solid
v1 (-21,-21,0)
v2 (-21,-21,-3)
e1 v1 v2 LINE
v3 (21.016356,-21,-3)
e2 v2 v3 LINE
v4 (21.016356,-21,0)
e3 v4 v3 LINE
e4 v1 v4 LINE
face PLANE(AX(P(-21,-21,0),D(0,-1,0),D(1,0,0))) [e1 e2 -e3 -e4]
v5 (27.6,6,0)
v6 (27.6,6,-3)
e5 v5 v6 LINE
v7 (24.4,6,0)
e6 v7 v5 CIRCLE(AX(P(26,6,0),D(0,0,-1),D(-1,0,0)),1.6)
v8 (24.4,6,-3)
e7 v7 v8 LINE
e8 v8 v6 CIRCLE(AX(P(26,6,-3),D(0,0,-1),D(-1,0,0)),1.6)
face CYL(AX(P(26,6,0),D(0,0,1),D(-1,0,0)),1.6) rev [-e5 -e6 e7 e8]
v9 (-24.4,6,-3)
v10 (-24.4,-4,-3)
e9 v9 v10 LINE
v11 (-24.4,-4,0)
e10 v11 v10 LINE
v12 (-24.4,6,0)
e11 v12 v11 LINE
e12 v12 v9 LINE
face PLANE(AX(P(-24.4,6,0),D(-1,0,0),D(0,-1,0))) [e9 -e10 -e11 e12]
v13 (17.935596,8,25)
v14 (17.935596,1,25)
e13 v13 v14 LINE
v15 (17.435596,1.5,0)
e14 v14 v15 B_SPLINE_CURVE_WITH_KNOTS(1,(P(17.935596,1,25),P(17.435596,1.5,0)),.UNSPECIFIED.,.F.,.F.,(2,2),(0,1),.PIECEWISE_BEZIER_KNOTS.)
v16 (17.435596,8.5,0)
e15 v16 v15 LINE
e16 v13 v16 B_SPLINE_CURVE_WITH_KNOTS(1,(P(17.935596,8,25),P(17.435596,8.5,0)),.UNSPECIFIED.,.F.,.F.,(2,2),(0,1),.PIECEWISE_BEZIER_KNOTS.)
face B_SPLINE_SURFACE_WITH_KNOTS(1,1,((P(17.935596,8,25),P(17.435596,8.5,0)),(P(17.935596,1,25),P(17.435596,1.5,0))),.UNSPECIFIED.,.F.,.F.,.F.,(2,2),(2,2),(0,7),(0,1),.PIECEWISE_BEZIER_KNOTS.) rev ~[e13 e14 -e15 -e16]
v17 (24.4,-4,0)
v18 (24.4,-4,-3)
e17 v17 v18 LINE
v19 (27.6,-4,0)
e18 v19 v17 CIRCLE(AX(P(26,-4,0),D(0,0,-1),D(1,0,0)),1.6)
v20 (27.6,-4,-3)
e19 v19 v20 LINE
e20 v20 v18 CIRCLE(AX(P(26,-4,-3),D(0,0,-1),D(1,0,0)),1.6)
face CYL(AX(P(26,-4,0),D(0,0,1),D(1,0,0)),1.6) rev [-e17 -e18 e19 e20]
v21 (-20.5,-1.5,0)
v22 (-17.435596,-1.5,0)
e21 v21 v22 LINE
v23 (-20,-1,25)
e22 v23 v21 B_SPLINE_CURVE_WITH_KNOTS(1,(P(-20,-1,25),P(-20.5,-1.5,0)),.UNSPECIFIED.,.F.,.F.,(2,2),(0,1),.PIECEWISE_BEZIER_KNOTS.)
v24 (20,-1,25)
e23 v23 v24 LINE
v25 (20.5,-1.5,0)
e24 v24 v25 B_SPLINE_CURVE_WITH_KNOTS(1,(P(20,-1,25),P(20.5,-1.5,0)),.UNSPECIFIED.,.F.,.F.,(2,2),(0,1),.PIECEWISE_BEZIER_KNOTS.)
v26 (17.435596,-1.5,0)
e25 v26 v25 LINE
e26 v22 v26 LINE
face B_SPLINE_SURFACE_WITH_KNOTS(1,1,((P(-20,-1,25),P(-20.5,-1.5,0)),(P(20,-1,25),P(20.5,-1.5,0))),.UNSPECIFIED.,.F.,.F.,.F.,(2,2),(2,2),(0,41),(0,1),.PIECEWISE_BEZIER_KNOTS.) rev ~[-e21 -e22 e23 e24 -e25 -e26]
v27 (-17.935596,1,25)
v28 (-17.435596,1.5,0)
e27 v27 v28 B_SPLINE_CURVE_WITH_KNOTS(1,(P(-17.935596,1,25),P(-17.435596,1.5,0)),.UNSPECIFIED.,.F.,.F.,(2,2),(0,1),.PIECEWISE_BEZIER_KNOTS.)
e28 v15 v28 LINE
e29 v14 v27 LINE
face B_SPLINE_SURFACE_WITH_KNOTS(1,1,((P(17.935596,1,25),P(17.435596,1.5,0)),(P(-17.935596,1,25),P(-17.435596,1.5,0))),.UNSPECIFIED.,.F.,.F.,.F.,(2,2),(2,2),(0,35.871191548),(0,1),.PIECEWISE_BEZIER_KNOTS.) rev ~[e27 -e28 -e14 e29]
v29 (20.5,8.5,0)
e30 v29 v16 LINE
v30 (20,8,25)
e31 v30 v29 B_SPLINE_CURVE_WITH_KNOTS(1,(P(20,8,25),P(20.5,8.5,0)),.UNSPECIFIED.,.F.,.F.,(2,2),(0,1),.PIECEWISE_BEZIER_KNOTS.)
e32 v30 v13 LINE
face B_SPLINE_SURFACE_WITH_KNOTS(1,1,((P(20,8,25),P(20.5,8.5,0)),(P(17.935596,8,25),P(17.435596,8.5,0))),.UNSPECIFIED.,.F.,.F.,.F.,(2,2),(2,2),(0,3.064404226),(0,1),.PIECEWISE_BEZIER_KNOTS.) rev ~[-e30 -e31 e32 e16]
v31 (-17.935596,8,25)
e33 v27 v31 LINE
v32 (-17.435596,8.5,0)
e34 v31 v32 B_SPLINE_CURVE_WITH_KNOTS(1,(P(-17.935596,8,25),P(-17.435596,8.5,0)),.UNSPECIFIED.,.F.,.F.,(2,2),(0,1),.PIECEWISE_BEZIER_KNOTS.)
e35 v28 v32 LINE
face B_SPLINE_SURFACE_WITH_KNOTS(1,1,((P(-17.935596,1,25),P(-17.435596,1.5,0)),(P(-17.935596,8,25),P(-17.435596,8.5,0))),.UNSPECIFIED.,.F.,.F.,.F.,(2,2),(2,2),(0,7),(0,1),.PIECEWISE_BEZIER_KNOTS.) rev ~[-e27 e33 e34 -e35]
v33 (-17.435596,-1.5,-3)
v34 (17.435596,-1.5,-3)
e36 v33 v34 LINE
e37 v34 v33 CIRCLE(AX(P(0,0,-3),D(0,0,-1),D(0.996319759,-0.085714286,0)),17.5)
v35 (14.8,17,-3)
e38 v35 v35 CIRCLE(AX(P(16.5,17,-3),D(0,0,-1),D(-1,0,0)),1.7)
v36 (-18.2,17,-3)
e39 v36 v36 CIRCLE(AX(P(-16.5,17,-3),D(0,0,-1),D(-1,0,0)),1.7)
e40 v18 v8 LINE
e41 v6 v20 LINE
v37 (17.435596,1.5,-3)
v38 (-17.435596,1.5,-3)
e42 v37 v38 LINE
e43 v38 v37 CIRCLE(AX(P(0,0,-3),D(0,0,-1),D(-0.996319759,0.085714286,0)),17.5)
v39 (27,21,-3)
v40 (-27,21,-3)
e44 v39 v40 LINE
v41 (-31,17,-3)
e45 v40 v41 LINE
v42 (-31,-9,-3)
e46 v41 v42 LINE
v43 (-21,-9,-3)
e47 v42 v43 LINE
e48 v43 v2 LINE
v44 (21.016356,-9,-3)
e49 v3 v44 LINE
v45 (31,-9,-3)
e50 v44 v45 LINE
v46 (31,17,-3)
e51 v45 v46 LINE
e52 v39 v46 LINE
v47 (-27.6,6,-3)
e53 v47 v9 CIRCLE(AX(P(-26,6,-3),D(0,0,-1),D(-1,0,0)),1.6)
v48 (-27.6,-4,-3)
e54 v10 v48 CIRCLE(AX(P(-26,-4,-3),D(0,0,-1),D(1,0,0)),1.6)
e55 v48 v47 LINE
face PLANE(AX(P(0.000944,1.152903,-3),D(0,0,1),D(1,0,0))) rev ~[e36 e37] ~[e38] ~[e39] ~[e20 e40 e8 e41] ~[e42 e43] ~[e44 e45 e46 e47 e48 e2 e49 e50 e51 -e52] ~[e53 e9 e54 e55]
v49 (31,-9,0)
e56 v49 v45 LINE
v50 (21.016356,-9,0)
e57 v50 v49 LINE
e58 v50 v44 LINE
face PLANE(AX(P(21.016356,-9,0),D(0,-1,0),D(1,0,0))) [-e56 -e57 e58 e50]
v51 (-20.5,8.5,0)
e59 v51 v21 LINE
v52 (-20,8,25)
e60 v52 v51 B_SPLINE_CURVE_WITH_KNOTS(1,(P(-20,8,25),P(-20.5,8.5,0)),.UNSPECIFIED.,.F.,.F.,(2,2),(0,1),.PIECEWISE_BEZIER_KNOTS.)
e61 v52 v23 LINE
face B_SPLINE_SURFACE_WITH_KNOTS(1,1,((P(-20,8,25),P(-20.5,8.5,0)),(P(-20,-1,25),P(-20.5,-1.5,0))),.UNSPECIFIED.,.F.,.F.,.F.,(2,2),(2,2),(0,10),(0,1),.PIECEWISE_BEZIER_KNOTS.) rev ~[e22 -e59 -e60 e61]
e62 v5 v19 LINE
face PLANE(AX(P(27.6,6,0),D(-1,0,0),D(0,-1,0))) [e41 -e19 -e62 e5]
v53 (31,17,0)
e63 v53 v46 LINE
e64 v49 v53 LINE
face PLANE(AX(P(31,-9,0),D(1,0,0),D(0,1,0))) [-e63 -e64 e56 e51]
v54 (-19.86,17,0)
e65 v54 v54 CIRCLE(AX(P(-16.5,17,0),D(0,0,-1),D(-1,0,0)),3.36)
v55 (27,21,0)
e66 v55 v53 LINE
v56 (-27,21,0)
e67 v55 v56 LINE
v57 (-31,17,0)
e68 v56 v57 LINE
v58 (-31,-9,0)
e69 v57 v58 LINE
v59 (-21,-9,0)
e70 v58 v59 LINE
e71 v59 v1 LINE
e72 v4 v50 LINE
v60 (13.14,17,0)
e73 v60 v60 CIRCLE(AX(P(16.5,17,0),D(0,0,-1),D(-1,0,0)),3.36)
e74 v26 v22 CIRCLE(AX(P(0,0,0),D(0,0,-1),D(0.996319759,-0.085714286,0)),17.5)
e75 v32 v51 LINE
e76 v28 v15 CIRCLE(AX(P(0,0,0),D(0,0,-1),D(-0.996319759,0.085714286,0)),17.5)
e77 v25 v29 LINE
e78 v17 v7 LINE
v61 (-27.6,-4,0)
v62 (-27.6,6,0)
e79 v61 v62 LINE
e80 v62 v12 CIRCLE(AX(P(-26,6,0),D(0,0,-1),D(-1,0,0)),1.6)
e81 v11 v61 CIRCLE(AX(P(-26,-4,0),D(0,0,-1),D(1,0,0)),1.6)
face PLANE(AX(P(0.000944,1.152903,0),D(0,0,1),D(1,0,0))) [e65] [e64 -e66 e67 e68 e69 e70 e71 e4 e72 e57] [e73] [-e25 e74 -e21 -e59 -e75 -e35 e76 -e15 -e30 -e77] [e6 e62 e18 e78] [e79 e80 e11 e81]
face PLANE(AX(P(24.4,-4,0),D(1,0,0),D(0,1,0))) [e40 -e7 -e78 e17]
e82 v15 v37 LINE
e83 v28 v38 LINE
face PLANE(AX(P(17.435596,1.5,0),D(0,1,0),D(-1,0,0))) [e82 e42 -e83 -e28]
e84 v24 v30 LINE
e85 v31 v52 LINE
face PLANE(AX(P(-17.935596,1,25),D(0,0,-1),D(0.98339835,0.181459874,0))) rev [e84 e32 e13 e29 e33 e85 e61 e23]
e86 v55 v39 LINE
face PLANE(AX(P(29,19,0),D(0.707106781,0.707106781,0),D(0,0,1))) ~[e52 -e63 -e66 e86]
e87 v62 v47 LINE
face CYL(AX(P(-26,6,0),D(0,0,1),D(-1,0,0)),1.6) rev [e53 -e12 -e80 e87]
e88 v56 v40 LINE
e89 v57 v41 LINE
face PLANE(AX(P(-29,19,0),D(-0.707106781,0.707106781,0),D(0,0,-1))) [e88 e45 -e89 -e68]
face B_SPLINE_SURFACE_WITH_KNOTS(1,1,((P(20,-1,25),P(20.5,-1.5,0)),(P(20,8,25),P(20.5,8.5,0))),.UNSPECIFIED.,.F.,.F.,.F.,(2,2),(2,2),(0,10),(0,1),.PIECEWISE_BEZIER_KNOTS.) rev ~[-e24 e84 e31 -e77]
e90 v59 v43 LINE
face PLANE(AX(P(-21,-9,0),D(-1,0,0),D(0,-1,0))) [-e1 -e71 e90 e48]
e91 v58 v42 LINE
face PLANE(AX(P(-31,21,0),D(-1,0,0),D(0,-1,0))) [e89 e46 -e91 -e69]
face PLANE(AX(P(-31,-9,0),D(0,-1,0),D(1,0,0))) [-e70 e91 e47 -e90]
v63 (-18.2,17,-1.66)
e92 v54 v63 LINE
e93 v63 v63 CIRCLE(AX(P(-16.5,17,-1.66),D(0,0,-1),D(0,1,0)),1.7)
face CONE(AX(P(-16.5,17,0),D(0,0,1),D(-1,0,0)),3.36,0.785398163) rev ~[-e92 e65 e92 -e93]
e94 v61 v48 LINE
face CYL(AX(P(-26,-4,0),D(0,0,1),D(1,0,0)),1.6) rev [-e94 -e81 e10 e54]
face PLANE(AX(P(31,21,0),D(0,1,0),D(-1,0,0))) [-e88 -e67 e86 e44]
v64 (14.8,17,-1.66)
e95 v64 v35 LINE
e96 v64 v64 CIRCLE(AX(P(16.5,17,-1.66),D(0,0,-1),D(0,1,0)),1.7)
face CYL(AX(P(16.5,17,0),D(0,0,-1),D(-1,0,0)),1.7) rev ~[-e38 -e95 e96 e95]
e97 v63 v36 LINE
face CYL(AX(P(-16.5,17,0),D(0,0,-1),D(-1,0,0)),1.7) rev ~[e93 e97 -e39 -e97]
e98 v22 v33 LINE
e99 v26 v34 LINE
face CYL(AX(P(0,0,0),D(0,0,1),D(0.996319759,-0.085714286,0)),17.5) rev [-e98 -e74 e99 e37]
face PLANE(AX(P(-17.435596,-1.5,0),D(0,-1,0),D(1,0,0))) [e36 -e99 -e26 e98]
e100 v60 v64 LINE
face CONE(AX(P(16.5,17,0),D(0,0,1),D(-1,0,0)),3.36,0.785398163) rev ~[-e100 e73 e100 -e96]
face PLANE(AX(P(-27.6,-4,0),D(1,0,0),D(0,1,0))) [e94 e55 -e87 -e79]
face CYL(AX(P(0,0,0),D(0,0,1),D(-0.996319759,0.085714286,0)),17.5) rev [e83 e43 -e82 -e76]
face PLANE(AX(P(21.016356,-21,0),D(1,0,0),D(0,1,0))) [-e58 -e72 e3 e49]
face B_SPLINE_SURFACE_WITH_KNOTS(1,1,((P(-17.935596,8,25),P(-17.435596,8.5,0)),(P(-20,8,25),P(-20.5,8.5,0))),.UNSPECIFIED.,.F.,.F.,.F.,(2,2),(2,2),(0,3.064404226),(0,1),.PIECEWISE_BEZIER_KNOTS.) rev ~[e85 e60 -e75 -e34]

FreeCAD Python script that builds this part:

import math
import FreeCAD as App
import Part
import Sketcher

V = App.Vector
Q = App.Units.Quantity


def edges_at(feature, points):
    """Names of the edges that pass closest to the given points."""
    edges = feature.Shape.Edges
    near = lambda p: min(range(len(edges)), key=lambda i: edges[i].distToShape(Part.Vertex(*p))[0])
    return sorted({f"Edge{near(p) + 1}" for p in points})

doc = App.newDocument("Part")
params = doc.addObject("Spreadsheet::Sheet", "Params")
for row, (alias, value) in enumerate([
    ("sketch1_radius", "17.5 mm"),
    ("sketch1_radius2", "1.6 mm"),
    ("sketch1_width", "62 mm"),
    ("sketch1_width2", "10 mm"),
    ("sketch1_height", "30 mm"),
    ("pad1_length", "3 mm"),
    ("sketch2_diameter", "3.4 mm"),
    ("hole_diameter", "3.4 mm"),
    ("hole_csink_diameter", "6.72 mm"),
    ("chamfer_size", "4 mm"),
    ("sketch3_width", "40 mm"),
    ("sketch3_height", "7 mm"),
    ("sketch3_height2", "9 mm"),
    ("sketch4_width", "41 mm"),
    ("sketch4_height", "7 mm"),
    ("sketch4_height2", "10 mm"),
], start=1):
    params.set(f"A{row}", alias)
    params.set(f"B{row}", "=" + value)
    params.setAlias(f"B{row}", alias)

body = doc.addObject("PartDesign::Body", "Body")

sketch1 = doc.addObject("Sketcher::SketchObject", "Sketch")
body.addObject(sketch1)
sketch1.AttachmentSupport = (doc.XY_Plane, [""])
sketch1.MapMode = "FlatFace"
sketch1.addGeometry([
    Part.LineSegment(V(31, 21, 0), V(-31, 21, 0)),
    Part.LineSegment(V(-31, 21, 0), V(-31, -9, 0)),
    Part.LineSegment(V(-31, -9, 0), V(-21, -9, 0)),
    Part.LineSegment(V(-21, -9, 0), V(-21, -21, 0)),
    Part.LineSegment(V(-21, -21, 0), V(21.016356, -21, 0)),
    Part.LineSegment(V(21.016356, -21, 0), V(21.016356, -9, 0)),
    Part.LineSegment(V(21.016356, -9, 0), V(31, -9, 0)),
    Part.LineSegment(V(31, -9, 0), V(31, 21, 0)),
    Part.LineSegment(V(-17.435596, -1.5, 0), V(17.435596, -1.5, 0)),
    Part.ArcOfCircle(Part.Circle(V(0, 0, 0), V(0, 0, 1), 17.5), math.radians(-175.0829), math.radians(-4.9171)),
    Part.LineSegment(V(-24.4, 6, 0), V(-24.4, -4, 0)),
    Part.ArcOfCircle(Part.Circle(V(-26, -4, 0), V(0, 0, 1), 1.6), math.radians(180), math.radians(360)),
    Part.LineSegment(V(-27.6, -4, 0), V(-27.6, 6, 0)),
    Part.ArcOfCircle(Part.Circle(V(-26, 6, 0), V(0, 0, 1), 1.6), math.radians(0), math.radians(180)),
    Part.LineSegment(V(27.6, 6, 0), V(27.6, -4, 0)),
    Part.ArcOfCircle(Part.Circle(V(26, -4, 0), V(0, 0, 1), 1.6), math.radians(180), math.radians(360)),
    Part.LineSegment(V(24.4, -4, 0), V(24.4, 6, 0)),
    Part.ArcOfCircle(Part.Circle(V(26, 6, 0), V(0, 0, 1), 1.6), math.radians(0), math.radians(180)),
    Part.ArcOfCircle(Part.Circle(V(0, 0, 0), V(0, 0, 1), 17.5), math.radians(4.9171), math.radians(175.0829)),
    Part.LineSegment(V(17.435596, 1.5, 0), V(-17.435596, 1.5, 0)),
], False)
sketch1.addConstraint([
    Sketcher.Constraint("Coincident", 0, 2, 1, 1),
    Sketcher.Constraint("Coincident", 1, 2, 2, 1),
    Sketcher.Constraint("Coincident", 2, 2, 3, 1),
    Sketcher.Constraint("Coincident", 3, 2, 4, 1),
    Sketcher.Constraint("Coincident", 4, 2, 5, 1),
    Sketcher.Constraint("Coincident", 5, 2, 6, 1),
    Sketcher.Constraint("Coincident", 6, 2, 7, 1),
    Sketcher.Constraint("Coincident", 7, 2, 0, 1),
    Sketcher.Constraint("Coincident", 8, 1, 9, 1),
    Sketcher.Constraint("Coincident", 9, 2, 8, 2),
    Sketcher.Constraint("Tangent", 10, 2, 11, 2),
    Sketcher.Constraint("Tangent", 11, 1, 12, 1),
    Sketcher.Constraint("Tangent", 12, 2, 13, 2),
    Sketcher.Constraint("Tangent", 13, 1, 10, 1),
    Sketcher.Constraint("Tangent", 14, 2, 15, 2),
    Sketcher.Constraint("Tangent", 15, 1, 16, 1),
    Sketcher.Constraint("Tangent", 16, 2, 17, 2),
    Sketcher.Constraint("Tangent", 17, 1, 14, 1),
    Sketcher.Constraint("Coincident", 18, 1, 19, 1),
    Sketcher.Constraint("Coincident", 19, 2, 18, 2),
    Sketcher.Constraint("Horizontal", 0),
    Sketcher.Constraint("Vertical", 1),
    Sketcher.Constraint("Horizontal", 2),
    Sketcher.Constraint("Vertical", 3),
    Sketcher.Constraint("Horizontal", 4),
    Sketcher.Constraint("Vertical", 5),
    Sketcher.Constraint("Horizontal", 6),
    Sketcher.Constraint("Vertical", 7),
    Sketcher.Constraint("Horizontal", 8),
    Sketcher.Constraint("Vertical", 10),
    Sketcher.Constraint("Vertical", 12),
    Sketcher.Constraint("Vertical", 14),
    Sketcher.Constraint("Vertical", 16),
    Sketcher.Constraint("Horizontal", 19),
    Sketcher.Constraint("Coincident", 9, 3, -1, 1),
    Sketcher.Constraint("Coincident", 18, 3, -1, 1),
    Sketcher.Constraint("Equal", 13, 15),
    Sketcher.Constraint("Equal", 9, 18),
    Sketcher.Constraint("Symmetric", 11, 3, 15, 3, -2),
    Sketcher.Constraint("Symmetric", 1, 2, 6, 2, -2),
    Sketcher.Constraint("Horizontal", 13, 3, 17, 3),
    Sketcher.Constraint("Vertical", 9, 2, 18, 1),
    Sketcher.Constraint("Equal", 2, 10),
    Sketcher.Constraint("Radius", 9, Q("17.5 mm")),
    Sketcher.Constraint("Radius", 11, Q("1.6 mm")),
    Sketcher.Constraint("DistanceX", 0, 2, 0, 1, Q("62 mm")),
    Sketcher.Constraint("DistanceX", 2, 1, 2, 2, Q("10 mm")),
    Sketcher.Constraint("DistanceY", 1, 2, 1, 1, Q("30 mm")),
    Sketcher.Constraint("DistanceY", 3, 2, 3, 1, Q("12 mm")),
    Sketcher.Constraint("DistanceX", 11, 3, -1, 1, Q("26 mm")),
    Sketcher.Constraint("DistanceY", 11, 3, -1, 1, Q("4 mm")),
    Sketcher.Constraint("DistanceY", -1, 1, 0, 2, Q("21 mm")),
    Sketcher.Constraint("DistanceY", 9, 2, 18, 1, Q("3 mm")),
    Sketcher.Constraint("DistanceX", 4, 1, 4, 2, Q("42.016356 mm")),
])
sketch1.setExpression("Constraints[43]", "Params.sketch1_radius")
sketch1.setExpression("Constraints[44]", "Params.sketch1_radius2")
sketch1.setExpression("Constraints[45]", "Params.sketch1_width")
sketch1.setExpression("Constraints[46]", "Params.sketch1_width2")
sketch1.setExpression("Constraints[47]", "Params.sketch1_height")
pad1 = doc.addObject("PartDesign::Pad", "Pad")
body.addObject(pad1)
pad1.Profile = sketch1
pad1.setExpression("Length", "Params.pad1_length")
pad1.Reversed = True

sketch2 = doc.addObject("Sketcher::SketchObject", "Sketch001")
body.addObject(sketch2)
sketch2.AttachmentSupport = (doc.XY_Plane, [""])
sketch2.MapMode = "FlatFace"
sketch2.addGeometry([
    Part.Circle(V(-16.5, 17, 0), V(0, 0, 1), 1.7),
    Part.Circle(V(16.5, 17, 0), V(0, 0, 1), 1.7),
], False)
sketch2.addConstraint([
    Sketcher.Constraint("Equal", 0, 1),
    Sketcher.Constraint("Symmetric", 0, 3, 1, 3, -2),
    Sketcher.Constraint("Diameter", 0, Q("3.4 mm")),
    Sketcher.Constraint("DistanceY", -1, 1, 0, 3, Q("17 mm")),
    Sketcher.Constraint("DistanceX", 0, 3, 1, 3, Q("33 mm")),
])
sketch2.setExpression("Constraints[2]", "Params.sketch2_diameter")
doc.recompute()
hole = doc.addObject("PartDesign::Hole", "Hole")
body.addObject(hole)
hole.Profile = sketch2
hole.ThreadType = "None"
hole.setExpression("Diameter", "Params.hole_diameter")
hole.DepthType = "ThroughAll"
hole.HoleCutType = "Countersink"
hole.setExpression("HoleCutDiameter", "Params.hole_csink_diameter")
hole.HoleCutCountersinkAngle = 90
doc.recompute()

chamfer = doc.addObject("PartDesign::Chamfer", "Chamfer")
body.addObject(chamfer)
chamfer.Base = (hole, edges_at(hole, [(31, 21, -1.5), (-31, 21, -1.5)]))
chamfer.setExpression("Size", "Params.chamfer_size")

sketch3 = doc.addObject("Sketcher::SketchObject", "Sketch002")
body.addObject(sketch3)
sketch3.AttachmentSupport = (doc.XY_Plane, [""])
sketch3.MapMode = "FlatFace"
sketch3.AttachmentOffset = App.Placement(V(0, 0, 25), App.Rotation())
sketch3.addGeometry([
    Part.LineSegment(V(-17.935596, 1, 0), V(-17.935596, 8, 0)),
    Part.LineSegment(V(-17.935596, 8, 0), V(-20, 8, 0)),
    Part.LineSegment(V(-20, 8, 0), V(-20, -1, 0)),
    Part.LineSegment(V(-20, -1, 0), V(20, -1, 0)),
    Part.LineSegment(V(20, -1, 0), V(20, 8, 0)),
    Part.LineSegment(V(20, 8, 0), V(17.935596, 8, 0)),
    Part.LineSegment(V(17.935596, 8, 0), V(17.935596, 1, 0)),
    Part.LineSegment(V(17.935596, 1, 0), V(-17.935596, 1, 0)),
], False)
sketch3.addConstraint([
    Sketcher.Constraint("Coincident", 0, 2, 1, 1),
    Sketcher.Constraint("Coincident", 1, 2, 2, 1),
    Sketcher.Constraint("Coincident", 2, 2, 3, 1),
    Sketcher.Constraint("Coincident", 3, 2, 4, 1),
    Sketcher.Constraint("Coincident", 4, 2, 5, 1),
    Sketcher.Constraint("Coincident", 5, 2, 6, 1),
    Sketcher.Constraint("Coincident", 6, 2, 7, 1),
    Sketcher.Constraint("Coincident", 7, 2, 0, 1),
    Sketcher.Constraint("Vertical", 0),
    Sketcher.Constraint("Horizontal", 1),
    Sketcher.Constraint("Vertical", 2),
    Sketcher.Constraint("Horizontal", 3),
    Sketcher.Constraint("Vertical", 4),
    Sketcher.Constraint("Horizontal", 5),
    Sketcher.Constraint("Vertical", 6),
    Sketcher.Constraint("Horizontal", 7),
    Sketcher.Constraint("Symmetric", 1, 2, 4, 2, -2),
    Sketcher.Constraint("Equal", 1, 5),
    Sketcher.Constraint("DistanceX", 3, 1, 3, 2, Q("40 mm")),
    Sketcher.Constraint("DistanceY", 0, 1, 0, 2, Q("7 mm")),
    Sketcher.Constraint("DistanceY", 2, 2, 2, 1, Q("9 mm")),
    Sketcher.Constraint("DistanceY", -1, 1, 0, 2, Q("8 mm")),
    Sketcher.Constraint("DistanceX", 7, 2, 7, 1, Q("35.871192 mm")),
])
sketch3.setExpression("Constraints[18]", "Params.sketch3_width")
sketch3.setExpression("Constraints[19]", "Params.sketch3_height")
sketch3.setExpression("Constraints[20]", "Params.sketch3_height2")

sketch4 = doc.addObject("Sketcher::SketchObject", "Sketch003")
body.addObject(sketch4)
sketch4.AttachmentSupport = (doc.XY_Plane, [""])
sketch4.MapMode = "FlatFace"
sketch4.addGeometry([
    Part.LineSegment(V(17.435596, 1.5, 0), V(-17.435596, 1.5, 0)),
    Part.LineSegment(V(-17.435596, 1.5, 0), V(-17.435596, 8.5, 0)),
    Part.LineSegment(V(-17.435596, 8.5, 0), V(-20.5, 8.5, 0)),
    Part.LineSegment(V(-20.5, 8.5, 0), V(-20.5, -1.5, 0)),
    Part.LineSegment(V(-20.5, -1.5, 0), V(20.5, -1.5, 0)),
    Part.LineSegment(V(20.5, -1.5, 0), V(20.5, 8.5, 0)),
    Part.LineSegment(V(20.5, 8.5, 0), V(17.435596, 8.5, 0)),
    Part.LineSegment(V(17.435596, 8.5, 0), V(17.435596, 1.5, 0)),
], False)
sketch4.addConstraint([
    Sketcher.Constraint("Coincident", 0, 2, 1, 1),
    Sketcher.Constraint("Coincident", 1, 2, 2, 1),
    Sketcher.Constraint("Coincident", 2, 2, 3, 1),
    Sketcher.Constraint("Coincident", 3, 2, 4, 1),
    Sketcher.Constraint("Coincident", 4, 2, 5, 1),
    Sketcher.Constraint("Coincident", 5, 2, 6, 1),
    Sketcher.Constraint("Coincident", 6, 2, 7, 1),
    Sketcher.Constraint("Coincident", 7, 2, 0, 1),
    Sketcher.Constraint("Horizontal", 0),
    Sketcher.Constraint("Vertical", 1),
    Sketcher.Constraint("Horizontal", 2),
    Sketcher.Constraint("Vertical", 3),
    Sketcher.Constraint("Horizontal", 4),
    Sketcher.Constraint("Vertical", 5),
    Sketcher.Constraint("Horizontal", 6),
    Sketcher.Constraint("Vertical", 7),
    Sketcher.Constraint("Symmetric", 2, 2, 5, 2, -2),
    Sketcher.Constraint("Equal", 2, 6),
    Sketcher.Constraint("DistanceX", 4, 1, 4, 2, Q("41 mm")),
    Sketcher.Constraint("DistanceY", 1, 1, 1, 2, Q("7 mm")),
    Sketcher.Constraint("DistanceY", 3, 2, 3, 1, Q("10 mm")),
    Sketcher.Constraint("DistanceY", -1, 1, 0, 2, Q("1.5 mm")),
    Sketcher.Constraint("DistanceX", 0, 2, 0, 1, Q("34.871192 mm")),
])
sketch4.setExpression("Constraints[18]", "Params.sketch4_width")
sketch4.setExpression("Constraints[19]", "Params.sketch4_height")
sketch4.setExpression("Constraints[20]", "Params.sketch4_height2")

additiveloft = doc.addObject("PartDesign::AdditiveLoft", "AdditiveLoft")
body.addObject(additiveloft)
additiveloft.Profile = sketch3
additiveloft.Sections = [sketch4]

doc.recompute()
